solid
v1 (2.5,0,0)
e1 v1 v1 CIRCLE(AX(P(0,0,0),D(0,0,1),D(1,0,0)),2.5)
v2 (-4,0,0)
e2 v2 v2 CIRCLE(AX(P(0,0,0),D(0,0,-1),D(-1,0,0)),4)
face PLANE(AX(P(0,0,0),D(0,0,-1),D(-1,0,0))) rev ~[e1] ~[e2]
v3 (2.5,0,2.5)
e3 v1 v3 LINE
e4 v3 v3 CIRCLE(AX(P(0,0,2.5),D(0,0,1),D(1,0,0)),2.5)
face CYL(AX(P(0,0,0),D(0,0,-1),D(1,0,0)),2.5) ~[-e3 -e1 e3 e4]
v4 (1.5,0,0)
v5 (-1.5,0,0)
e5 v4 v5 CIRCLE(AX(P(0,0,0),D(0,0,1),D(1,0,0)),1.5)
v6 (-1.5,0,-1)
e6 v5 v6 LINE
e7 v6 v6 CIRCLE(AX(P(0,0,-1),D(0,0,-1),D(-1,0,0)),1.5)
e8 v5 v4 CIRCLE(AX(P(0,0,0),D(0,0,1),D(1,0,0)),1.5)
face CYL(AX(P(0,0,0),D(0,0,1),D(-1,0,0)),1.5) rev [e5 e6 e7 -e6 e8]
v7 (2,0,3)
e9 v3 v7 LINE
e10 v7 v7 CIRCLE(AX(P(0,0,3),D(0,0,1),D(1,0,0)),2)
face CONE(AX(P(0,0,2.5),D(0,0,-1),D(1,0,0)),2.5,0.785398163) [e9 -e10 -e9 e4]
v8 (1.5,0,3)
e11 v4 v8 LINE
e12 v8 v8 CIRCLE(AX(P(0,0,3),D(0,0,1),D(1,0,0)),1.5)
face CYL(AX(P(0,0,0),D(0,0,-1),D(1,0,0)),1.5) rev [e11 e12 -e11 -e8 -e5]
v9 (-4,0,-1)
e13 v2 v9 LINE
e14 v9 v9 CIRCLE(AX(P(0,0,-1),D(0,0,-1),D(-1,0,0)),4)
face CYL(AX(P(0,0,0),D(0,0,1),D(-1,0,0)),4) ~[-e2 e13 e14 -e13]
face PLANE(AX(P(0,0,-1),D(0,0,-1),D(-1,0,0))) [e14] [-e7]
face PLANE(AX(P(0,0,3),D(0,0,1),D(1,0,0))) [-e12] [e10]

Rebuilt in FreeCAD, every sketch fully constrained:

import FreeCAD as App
import Part
import Sketcher
from FreeCAD import Vector
Q = App.Units.Quantity


def edges_at(feature, points):
    """Names of the edges that pass closest to the given points."""
    edges = feature.Shape.Edges
    near = lambda p: min(range(len(edges)), key=lambda i: edges[i].distToShape(Part.Vertex(*p))[0])
    return sorted({f"Edge{near(p) + 1}" for p in points})

doc = App.newDocument("Part")
body = doc.addObject("PartDesign::Body", "Body")

# Sketch on XY plane
sketch1 = doc.addObject("Sketcher::SketchObject", "Sketch")
body.addObject(sketch1)
sketch1.AttachmentSupport = (doc.XY_Plane, [""])
sketch1.MapMode = "FlatFace"
sketch1.addGeometry(Part.Circle(Vector(0, 0, 0), Vector(0, 0, 1), 2.5), False)
sketch1.addGeometry(Part.Circle(Vector(0, 0, 0), Vector(0, 0, 1), 1.5), False)
sketch1.addConstraint(Sketcher.Constraint("Coincident", 0, 3, -1, 1))
sketch1.addConstraint(Sketcher.Constraint("Coincident", 1, 3, -1, 1))
sketch1.addConstraint(Sketcher.Constraint("Diameter", 0, Q("5 mm")))
sketch1.addConstraint(Sketcher.Constraint("Diameter", 1, Q("3 mm")))
pad1 = doc.addObject("PartDesign::Pad", "Pad")
body.addObject(pad1)
pad1.Profile = sketch1
pad1.Length = 3
doc.recompute()

chamfer = doc.addObject("PartDesign::Chamfer", "Chamfer")
body.addObject(chamfer)
chamfer.Base = (pad1, edges_at(pad1, [(-2.5, 0, 3)]))
chamfer.Size = 0.5

# Sketch on XY plane
sketch2 = doc.addObject("Sketcher::SketchObject", "Sketch001")
body.addObject(sketch2)
sketch2.AttachmentSupport = (doc.XY_Plane, [""])
sketch2.MapMode = "FlatFace"
sketch2.addGeometry(Part.Circle(Vector(0, 0, 0), Vector(0, 0, 1), 4), False)
sketch2.addGeometry(Part.Circle(Vector(0, 0, 0), Vector(0, 0, 1), 1.5), False)
sketch2.addConstraint(Sketcher.Constraint("Coincident", 0, 3, -1, 1))
sketch2.addConstraint(Sketcher.Constraint("Coincident", 1, 3, -1, 1))
sketch2.addConstraint(Sketcher.Constraint("Diameter", 0, Q("8 mm")))
sketch2.addConstraint(Sketcher.Constraint("Diameter", 1, Q("3 mm")))
pad2 = doc.addObject("PartDesign::Pad", "Pad001")
body.addObject(pad2)
pad2.Profile = sketch2
pad2.Length = 1
pad2.Reversed = True

doc.recompute()
